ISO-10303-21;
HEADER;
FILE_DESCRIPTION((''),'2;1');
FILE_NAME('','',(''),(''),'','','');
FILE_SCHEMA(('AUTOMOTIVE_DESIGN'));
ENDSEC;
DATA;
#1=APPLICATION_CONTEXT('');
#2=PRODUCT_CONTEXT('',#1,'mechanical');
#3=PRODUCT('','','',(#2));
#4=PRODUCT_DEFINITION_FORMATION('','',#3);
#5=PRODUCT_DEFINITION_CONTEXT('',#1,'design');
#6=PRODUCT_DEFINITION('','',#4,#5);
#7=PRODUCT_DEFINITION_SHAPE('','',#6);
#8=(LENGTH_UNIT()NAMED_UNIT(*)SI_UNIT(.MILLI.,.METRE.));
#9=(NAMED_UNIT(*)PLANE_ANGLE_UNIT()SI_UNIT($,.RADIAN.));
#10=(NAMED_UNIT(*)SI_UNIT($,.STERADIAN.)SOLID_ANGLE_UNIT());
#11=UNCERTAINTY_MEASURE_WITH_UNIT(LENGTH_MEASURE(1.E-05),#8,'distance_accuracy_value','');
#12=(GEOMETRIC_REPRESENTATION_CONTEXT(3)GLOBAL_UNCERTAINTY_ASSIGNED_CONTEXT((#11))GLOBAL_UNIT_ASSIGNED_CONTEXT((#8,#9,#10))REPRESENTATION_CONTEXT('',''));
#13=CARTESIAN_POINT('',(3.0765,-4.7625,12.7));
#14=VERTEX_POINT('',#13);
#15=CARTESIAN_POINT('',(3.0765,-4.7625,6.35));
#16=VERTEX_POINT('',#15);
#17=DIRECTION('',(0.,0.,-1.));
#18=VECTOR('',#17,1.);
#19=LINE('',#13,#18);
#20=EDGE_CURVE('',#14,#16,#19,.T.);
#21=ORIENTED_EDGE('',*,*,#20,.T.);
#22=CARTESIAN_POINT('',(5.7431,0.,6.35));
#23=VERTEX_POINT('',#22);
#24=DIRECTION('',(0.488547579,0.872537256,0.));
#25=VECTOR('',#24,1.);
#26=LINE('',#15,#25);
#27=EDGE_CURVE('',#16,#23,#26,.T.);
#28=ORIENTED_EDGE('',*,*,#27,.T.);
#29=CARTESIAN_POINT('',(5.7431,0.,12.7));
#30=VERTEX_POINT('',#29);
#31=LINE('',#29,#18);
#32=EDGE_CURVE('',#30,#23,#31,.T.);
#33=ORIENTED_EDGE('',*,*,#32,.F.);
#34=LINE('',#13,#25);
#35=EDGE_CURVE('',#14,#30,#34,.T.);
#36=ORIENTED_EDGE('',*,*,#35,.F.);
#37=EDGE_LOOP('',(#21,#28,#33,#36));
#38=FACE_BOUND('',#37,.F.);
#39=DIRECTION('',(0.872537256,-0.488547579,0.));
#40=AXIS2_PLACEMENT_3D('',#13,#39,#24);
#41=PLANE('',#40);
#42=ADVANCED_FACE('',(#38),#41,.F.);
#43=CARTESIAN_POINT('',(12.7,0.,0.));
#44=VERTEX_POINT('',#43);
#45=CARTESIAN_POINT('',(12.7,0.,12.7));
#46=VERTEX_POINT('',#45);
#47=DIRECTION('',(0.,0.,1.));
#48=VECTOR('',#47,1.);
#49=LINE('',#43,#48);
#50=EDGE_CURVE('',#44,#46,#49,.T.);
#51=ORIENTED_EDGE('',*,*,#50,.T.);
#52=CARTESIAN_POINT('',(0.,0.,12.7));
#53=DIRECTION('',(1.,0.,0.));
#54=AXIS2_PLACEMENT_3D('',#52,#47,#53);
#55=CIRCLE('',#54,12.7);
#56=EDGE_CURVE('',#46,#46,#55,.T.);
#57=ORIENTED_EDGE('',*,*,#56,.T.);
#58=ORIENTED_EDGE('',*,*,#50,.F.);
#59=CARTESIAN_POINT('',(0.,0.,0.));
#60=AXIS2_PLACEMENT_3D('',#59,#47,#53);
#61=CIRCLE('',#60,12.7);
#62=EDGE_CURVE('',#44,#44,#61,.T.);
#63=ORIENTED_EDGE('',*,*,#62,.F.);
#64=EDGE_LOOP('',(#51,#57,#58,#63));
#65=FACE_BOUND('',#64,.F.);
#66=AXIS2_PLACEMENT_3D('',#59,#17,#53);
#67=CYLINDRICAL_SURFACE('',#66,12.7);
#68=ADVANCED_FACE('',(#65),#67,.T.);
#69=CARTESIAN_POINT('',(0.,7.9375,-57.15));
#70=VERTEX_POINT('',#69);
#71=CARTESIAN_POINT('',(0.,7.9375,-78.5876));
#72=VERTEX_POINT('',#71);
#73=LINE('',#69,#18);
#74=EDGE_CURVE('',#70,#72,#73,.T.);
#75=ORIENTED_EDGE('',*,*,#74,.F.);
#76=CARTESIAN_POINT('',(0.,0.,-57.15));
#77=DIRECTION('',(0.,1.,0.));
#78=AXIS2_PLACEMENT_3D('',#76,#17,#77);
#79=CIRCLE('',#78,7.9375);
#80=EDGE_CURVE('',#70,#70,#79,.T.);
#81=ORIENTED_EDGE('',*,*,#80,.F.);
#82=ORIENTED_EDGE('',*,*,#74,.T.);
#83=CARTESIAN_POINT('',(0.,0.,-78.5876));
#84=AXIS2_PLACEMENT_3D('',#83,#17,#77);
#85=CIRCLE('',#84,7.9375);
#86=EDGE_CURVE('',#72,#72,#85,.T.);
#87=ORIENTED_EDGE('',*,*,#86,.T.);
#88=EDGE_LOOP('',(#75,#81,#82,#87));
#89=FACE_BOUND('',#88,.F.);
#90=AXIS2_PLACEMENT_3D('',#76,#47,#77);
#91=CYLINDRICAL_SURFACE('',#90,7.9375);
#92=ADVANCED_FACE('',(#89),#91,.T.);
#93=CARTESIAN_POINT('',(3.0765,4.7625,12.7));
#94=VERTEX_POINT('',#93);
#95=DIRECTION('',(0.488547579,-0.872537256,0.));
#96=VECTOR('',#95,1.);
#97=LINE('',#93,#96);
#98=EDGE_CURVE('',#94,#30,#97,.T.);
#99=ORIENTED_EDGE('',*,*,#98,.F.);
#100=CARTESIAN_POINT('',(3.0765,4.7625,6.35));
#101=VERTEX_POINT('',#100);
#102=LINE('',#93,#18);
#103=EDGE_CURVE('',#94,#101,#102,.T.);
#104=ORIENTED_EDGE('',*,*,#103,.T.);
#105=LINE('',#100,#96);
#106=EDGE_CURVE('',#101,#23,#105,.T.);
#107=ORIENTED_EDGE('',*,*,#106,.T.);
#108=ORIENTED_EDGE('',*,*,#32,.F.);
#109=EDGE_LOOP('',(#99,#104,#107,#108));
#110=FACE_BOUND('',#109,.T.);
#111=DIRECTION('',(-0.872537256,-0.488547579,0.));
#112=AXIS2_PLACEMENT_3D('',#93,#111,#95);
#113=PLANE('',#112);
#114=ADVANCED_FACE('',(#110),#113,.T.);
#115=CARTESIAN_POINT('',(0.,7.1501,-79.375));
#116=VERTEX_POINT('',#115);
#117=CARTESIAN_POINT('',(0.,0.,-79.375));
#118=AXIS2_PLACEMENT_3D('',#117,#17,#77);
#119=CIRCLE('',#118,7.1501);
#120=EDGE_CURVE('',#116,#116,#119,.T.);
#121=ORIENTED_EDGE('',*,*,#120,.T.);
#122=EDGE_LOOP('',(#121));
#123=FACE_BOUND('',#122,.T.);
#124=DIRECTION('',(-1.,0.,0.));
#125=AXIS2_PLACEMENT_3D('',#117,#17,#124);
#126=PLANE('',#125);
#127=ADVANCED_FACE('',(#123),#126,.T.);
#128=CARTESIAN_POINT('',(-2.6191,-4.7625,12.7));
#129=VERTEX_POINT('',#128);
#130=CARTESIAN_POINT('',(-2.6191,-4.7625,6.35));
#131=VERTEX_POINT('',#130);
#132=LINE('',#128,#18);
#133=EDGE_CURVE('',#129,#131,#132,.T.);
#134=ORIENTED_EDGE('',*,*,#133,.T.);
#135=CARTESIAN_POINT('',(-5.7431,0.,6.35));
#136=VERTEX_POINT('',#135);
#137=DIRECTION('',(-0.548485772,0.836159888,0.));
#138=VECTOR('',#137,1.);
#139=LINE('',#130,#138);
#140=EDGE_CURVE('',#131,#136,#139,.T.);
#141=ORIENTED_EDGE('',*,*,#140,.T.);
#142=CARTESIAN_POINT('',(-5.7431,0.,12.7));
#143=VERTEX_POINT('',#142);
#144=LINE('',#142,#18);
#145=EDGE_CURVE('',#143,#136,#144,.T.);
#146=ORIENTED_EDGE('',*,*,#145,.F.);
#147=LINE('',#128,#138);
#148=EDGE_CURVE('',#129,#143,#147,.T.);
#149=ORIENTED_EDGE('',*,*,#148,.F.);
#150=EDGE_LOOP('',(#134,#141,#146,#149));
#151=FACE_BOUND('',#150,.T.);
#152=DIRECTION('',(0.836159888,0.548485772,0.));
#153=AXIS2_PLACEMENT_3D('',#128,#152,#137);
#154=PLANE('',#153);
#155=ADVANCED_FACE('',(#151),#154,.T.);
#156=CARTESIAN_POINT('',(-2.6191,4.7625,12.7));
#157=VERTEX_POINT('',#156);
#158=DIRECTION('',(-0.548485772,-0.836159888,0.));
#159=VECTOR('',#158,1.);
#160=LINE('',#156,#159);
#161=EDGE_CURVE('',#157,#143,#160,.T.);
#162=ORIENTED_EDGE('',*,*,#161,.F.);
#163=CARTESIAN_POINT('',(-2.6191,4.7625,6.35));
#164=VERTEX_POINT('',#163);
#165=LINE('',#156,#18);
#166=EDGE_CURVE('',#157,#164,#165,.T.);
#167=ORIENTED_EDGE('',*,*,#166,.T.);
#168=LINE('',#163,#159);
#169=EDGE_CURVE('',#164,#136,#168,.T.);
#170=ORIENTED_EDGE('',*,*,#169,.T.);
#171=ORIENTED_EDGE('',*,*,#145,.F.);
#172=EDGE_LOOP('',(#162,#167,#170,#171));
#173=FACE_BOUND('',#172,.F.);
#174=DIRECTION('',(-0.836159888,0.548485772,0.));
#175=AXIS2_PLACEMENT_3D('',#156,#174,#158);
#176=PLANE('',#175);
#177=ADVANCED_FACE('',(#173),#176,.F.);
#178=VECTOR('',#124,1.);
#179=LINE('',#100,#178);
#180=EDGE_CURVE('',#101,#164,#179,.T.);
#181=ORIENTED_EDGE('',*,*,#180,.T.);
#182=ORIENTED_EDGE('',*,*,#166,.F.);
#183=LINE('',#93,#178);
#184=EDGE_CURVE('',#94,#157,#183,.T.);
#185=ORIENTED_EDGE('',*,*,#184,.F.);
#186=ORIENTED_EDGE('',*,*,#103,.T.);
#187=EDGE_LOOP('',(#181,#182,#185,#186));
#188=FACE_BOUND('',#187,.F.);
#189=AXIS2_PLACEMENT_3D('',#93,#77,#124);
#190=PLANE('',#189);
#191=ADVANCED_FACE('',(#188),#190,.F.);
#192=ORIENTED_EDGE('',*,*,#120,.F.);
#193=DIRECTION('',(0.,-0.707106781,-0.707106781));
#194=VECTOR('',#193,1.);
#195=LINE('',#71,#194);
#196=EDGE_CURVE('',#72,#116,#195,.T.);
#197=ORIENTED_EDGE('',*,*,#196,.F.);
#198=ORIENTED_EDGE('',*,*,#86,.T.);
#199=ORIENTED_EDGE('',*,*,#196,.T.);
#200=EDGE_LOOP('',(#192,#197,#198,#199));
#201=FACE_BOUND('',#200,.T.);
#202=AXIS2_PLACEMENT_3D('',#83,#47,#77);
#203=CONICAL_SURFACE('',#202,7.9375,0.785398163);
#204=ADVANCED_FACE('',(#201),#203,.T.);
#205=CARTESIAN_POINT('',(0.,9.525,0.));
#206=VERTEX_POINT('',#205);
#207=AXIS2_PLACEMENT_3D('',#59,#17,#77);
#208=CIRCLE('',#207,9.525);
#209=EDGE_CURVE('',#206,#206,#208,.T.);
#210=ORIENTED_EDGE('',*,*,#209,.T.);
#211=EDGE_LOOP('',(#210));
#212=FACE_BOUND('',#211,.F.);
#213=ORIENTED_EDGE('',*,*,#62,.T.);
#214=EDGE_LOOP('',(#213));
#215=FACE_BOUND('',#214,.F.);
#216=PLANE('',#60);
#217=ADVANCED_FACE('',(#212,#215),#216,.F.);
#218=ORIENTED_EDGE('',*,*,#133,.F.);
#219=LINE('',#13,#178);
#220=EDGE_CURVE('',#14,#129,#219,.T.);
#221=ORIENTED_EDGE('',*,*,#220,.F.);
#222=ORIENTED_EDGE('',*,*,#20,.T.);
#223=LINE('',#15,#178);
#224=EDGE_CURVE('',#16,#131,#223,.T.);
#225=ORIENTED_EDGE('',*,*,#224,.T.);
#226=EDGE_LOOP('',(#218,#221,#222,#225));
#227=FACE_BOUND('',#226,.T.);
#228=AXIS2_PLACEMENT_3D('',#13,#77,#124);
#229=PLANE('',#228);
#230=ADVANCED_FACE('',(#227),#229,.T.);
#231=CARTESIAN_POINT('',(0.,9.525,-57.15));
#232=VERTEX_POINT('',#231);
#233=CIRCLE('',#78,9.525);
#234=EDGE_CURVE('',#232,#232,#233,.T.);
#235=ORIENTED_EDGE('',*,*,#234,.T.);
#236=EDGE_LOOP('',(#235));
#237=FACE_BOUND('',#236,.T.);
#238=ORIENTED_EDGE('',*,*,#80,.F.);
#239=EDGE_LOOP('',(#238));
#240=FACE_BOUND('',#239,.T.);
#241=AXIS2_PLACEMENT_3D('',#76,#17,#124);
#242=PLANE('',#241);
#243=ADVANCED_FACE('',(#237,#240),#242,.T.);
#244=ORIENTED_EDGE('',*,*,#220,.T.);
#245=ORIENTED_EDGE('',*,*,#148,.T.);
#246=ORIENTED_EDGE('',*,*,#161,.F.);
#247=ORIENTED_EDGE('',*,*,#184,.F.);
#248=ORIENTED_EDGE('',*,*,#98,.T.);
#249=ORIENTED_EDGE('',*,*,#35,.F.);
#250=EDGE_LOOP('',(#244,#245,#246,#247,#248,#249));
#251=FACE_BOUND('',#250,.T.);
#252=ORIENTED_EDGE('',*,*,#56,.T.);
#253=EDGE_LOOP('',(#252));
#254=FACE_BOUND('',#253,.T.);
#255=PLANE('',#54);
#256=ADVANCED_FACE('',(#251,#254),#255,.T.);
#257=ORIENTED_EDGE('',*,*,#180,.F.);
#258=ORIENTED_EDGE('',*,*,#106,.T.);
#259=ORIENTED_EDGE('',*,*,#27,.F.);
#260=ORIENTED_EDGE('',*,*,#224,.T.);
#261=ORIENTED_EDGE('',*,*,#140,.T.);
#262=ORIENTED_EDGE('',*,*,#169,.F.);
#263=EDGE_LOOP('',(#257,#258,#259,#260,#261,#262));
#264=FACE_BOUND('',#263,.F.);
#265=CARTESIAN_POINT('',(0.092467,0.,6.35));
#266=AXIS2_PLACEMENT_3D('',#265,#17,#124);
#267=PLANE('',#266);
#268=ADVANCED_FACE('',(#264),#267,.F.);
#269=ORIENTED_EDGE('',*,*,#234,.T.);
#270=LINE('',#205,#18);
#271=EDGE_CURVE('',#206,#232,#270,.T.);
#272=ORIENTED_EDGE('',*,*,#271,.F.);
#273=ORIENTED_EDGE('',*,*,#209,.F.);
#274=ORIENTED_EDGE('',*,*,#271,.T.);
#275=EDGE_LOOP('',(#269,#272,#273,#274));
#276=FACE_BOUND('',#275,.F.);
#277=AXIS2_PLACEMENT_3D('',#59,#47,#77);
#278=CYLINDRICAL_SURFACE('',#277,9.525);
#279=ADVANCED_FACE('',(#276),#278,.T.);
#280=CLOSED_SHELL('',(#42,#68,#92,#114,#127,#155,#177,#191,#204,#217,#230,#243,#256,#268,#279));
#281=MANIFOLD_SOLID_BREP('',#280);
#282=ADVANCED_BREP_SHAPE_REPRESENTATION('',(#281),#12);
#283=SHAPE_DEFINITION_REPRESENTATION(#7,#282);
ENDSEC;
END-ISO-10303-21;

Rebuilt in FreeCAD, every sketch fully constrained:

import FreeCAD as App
import Part
import Sketcher
Q = App.Units.Quantity


def edges_at(feature, points):
    """Names of the edges that pass closest to the given points."""
    edges = feature.Shape.Edges
    near = lambda p: min(range(len(edges)), key=lambda i: edges[i].distToShape(Part.Vertex(*p))[0])
    return sorted({f"Edge{near(p) + 1}" for p in points})


def add_polygon(sketch, points):
    """Adds a closed chain of lines whose ends are joined by coincident constraints."""
    first, n = sketch.GeometryCount, len(points)
    for a, b in zip(points, points[1:] + points[:1]):
        sketch.addGeometry(Part.LineSegment(App.Vector(*a, 0), App.Vector(*b, 0)), False)
    for i in range(n):
        sketch.addConstraint(Sketcher.Constraint("Coincident", first + i, 2, first + (i + 1) % n, 1))

doc = App.newDocument("Part")
body = doc.addObject("PartDesign::Body", "Body")

sketch1 = body.newObject("Sketcher::SketchObject", "Sketch")
sketch1.AttachmentSupport = (doc.getObject("XY_Plane"), [""])
sketch1.MapMode = "FlatFace"
sketch1.addGeometry(Part.Circle(App.Vector(0, 0, 0), App.Vector(0, 0, 1), 12.7), False)
sketch1.addConstraint(Sketcher.Constraint("Coincident", 0, 3, -1, 1))
sketch1.addConstraint(Sketcher.Constraint("Diameter", 0, Q("1 in")))
pad1 = body.newObject("PartDesign::Pad", "Pad")
pad1.Profile = sketch1
pad1.Length = Q("0.5 in")

sketch2 = body.newObject("Sketcher::SketchObject", "Sketch001")
sketch2.AttachmentSupport = (doc.getObject("XY_Plane"), [""])
sketch2.MapMode = "FlatFace"
sketch2.addGeometry(Part.Circle(App.Vector(0, 0, 0), App.Vector(0, 0, 1), 9.525), False)
sketch2.addConstraint(Sketcher.Constraint("Coincident", 0, 3, -1, 1))
sketch2.addConstraint(Sketcher.Constraint("Diameter", 0, Q("0.75 in")))
pad2 = body.newObject("PartDesign::Pad", "Pad001")
pad2.Profile = sketch2
pad2.Length = Q("2.25 in")
pad2.Reversed = True

sketch3 = body.newObject("Sketcher::SketchObject", "Sketch002")
sketch3.AttachmentSupport = (doc.getObject("XY_Plane"), [""])
sketch3.MapMode = "FlatFace"
sketch3.AttachmentOffset = App.Placement(App.Vector(0, 0, -2.25 * 25.4), App.Rotation())
sketch3.addGeometry(Part.Circle(App.Vector(0, 0, 0), App.Vector(0, 0, 1), 7.9375), False)
sketch3.addConstraint(Sketcher.Constraint("Coincident", 0, 3, -1, 1))
sketch3.addConstraint(Sketcher.Constraint("Diameter", 0, Q("0.625 in")))
pad3 = body.newObject("PartDesign::Pad", "Pad002")
pad3.Profile = sketch3
pad3.Length = Q("0.875 in")
pad3.Reversed = True

sketch4 = body.newObject("Sketcher::SketchObject", "Sketch003")
sketch4.AttachmentSupport = (doc.getObject("XY_Plane"), [""])
sketch4.MapMode = "FlatFace"
sketch4.AttachmentOffset = App.Placement(App.Vector(0, 0, 0.5 * 25.4), App.Rotation())
add_polygon(sketch4, [(-5.7431, 0), (-2.6191, -4.7625), (3.0765, -4.7625), (5.7431, 0), (3.0765, 4.7625), (-2.6191, 4.7625)])
sketch4.addConstraint(Sketcher.Constraint("Horizontal", 1))
sketch4.addConstraint(Sketcher.Constraint("Horizontal", 4))
sketch4.addConstraint(Sketcher.Constraint("Symmetric", 2, 2, 5, 2, -1, 1))
sketch4.addConstraint(Sketcher.Constraint("Symmetric", 1, 2, 3, 2, -1))
sketch4.addConstraint(Sketcher.Constraint("PointOnObject", 2, 2, -1))
sketch4.addConstraint(Sketcher.Constraint("Vertical", 0, 2, 4, 2))
sketch4.addConstraint(Sketcher.Constraint("DistanceY", 0, 2, -1, 1, Q("0.1875 in")))
sketch4.addConstraint(Sketcher.Constraint("DistanceX", 5, 2, 0, 2, Q("0.123 in")))
sketch4.addConstraint(Sketcher.Constraint("Distance", 2, Q("0.2149 in")))
sketch4.addConstraint(Sketcher.Constraint("DistanceX", 1, 1, 1, 2, Q("5.6956 mm")))
pocket1 = body.newObject("PartDesign::Pocket", "Pocket")
pocket1.Profile = sketch4
pocket1.Length = Q("0.25 in")
doc.recompute()

chamfer = body.newObject("PartDesign::Chamfer", "Chamfer")
chamfer.Base = (pocket1, edges_at(pocket1, [(0, -7.938, -79.375)]))
chamfer.Size = Q("0.031 in")

doc.recompute()
